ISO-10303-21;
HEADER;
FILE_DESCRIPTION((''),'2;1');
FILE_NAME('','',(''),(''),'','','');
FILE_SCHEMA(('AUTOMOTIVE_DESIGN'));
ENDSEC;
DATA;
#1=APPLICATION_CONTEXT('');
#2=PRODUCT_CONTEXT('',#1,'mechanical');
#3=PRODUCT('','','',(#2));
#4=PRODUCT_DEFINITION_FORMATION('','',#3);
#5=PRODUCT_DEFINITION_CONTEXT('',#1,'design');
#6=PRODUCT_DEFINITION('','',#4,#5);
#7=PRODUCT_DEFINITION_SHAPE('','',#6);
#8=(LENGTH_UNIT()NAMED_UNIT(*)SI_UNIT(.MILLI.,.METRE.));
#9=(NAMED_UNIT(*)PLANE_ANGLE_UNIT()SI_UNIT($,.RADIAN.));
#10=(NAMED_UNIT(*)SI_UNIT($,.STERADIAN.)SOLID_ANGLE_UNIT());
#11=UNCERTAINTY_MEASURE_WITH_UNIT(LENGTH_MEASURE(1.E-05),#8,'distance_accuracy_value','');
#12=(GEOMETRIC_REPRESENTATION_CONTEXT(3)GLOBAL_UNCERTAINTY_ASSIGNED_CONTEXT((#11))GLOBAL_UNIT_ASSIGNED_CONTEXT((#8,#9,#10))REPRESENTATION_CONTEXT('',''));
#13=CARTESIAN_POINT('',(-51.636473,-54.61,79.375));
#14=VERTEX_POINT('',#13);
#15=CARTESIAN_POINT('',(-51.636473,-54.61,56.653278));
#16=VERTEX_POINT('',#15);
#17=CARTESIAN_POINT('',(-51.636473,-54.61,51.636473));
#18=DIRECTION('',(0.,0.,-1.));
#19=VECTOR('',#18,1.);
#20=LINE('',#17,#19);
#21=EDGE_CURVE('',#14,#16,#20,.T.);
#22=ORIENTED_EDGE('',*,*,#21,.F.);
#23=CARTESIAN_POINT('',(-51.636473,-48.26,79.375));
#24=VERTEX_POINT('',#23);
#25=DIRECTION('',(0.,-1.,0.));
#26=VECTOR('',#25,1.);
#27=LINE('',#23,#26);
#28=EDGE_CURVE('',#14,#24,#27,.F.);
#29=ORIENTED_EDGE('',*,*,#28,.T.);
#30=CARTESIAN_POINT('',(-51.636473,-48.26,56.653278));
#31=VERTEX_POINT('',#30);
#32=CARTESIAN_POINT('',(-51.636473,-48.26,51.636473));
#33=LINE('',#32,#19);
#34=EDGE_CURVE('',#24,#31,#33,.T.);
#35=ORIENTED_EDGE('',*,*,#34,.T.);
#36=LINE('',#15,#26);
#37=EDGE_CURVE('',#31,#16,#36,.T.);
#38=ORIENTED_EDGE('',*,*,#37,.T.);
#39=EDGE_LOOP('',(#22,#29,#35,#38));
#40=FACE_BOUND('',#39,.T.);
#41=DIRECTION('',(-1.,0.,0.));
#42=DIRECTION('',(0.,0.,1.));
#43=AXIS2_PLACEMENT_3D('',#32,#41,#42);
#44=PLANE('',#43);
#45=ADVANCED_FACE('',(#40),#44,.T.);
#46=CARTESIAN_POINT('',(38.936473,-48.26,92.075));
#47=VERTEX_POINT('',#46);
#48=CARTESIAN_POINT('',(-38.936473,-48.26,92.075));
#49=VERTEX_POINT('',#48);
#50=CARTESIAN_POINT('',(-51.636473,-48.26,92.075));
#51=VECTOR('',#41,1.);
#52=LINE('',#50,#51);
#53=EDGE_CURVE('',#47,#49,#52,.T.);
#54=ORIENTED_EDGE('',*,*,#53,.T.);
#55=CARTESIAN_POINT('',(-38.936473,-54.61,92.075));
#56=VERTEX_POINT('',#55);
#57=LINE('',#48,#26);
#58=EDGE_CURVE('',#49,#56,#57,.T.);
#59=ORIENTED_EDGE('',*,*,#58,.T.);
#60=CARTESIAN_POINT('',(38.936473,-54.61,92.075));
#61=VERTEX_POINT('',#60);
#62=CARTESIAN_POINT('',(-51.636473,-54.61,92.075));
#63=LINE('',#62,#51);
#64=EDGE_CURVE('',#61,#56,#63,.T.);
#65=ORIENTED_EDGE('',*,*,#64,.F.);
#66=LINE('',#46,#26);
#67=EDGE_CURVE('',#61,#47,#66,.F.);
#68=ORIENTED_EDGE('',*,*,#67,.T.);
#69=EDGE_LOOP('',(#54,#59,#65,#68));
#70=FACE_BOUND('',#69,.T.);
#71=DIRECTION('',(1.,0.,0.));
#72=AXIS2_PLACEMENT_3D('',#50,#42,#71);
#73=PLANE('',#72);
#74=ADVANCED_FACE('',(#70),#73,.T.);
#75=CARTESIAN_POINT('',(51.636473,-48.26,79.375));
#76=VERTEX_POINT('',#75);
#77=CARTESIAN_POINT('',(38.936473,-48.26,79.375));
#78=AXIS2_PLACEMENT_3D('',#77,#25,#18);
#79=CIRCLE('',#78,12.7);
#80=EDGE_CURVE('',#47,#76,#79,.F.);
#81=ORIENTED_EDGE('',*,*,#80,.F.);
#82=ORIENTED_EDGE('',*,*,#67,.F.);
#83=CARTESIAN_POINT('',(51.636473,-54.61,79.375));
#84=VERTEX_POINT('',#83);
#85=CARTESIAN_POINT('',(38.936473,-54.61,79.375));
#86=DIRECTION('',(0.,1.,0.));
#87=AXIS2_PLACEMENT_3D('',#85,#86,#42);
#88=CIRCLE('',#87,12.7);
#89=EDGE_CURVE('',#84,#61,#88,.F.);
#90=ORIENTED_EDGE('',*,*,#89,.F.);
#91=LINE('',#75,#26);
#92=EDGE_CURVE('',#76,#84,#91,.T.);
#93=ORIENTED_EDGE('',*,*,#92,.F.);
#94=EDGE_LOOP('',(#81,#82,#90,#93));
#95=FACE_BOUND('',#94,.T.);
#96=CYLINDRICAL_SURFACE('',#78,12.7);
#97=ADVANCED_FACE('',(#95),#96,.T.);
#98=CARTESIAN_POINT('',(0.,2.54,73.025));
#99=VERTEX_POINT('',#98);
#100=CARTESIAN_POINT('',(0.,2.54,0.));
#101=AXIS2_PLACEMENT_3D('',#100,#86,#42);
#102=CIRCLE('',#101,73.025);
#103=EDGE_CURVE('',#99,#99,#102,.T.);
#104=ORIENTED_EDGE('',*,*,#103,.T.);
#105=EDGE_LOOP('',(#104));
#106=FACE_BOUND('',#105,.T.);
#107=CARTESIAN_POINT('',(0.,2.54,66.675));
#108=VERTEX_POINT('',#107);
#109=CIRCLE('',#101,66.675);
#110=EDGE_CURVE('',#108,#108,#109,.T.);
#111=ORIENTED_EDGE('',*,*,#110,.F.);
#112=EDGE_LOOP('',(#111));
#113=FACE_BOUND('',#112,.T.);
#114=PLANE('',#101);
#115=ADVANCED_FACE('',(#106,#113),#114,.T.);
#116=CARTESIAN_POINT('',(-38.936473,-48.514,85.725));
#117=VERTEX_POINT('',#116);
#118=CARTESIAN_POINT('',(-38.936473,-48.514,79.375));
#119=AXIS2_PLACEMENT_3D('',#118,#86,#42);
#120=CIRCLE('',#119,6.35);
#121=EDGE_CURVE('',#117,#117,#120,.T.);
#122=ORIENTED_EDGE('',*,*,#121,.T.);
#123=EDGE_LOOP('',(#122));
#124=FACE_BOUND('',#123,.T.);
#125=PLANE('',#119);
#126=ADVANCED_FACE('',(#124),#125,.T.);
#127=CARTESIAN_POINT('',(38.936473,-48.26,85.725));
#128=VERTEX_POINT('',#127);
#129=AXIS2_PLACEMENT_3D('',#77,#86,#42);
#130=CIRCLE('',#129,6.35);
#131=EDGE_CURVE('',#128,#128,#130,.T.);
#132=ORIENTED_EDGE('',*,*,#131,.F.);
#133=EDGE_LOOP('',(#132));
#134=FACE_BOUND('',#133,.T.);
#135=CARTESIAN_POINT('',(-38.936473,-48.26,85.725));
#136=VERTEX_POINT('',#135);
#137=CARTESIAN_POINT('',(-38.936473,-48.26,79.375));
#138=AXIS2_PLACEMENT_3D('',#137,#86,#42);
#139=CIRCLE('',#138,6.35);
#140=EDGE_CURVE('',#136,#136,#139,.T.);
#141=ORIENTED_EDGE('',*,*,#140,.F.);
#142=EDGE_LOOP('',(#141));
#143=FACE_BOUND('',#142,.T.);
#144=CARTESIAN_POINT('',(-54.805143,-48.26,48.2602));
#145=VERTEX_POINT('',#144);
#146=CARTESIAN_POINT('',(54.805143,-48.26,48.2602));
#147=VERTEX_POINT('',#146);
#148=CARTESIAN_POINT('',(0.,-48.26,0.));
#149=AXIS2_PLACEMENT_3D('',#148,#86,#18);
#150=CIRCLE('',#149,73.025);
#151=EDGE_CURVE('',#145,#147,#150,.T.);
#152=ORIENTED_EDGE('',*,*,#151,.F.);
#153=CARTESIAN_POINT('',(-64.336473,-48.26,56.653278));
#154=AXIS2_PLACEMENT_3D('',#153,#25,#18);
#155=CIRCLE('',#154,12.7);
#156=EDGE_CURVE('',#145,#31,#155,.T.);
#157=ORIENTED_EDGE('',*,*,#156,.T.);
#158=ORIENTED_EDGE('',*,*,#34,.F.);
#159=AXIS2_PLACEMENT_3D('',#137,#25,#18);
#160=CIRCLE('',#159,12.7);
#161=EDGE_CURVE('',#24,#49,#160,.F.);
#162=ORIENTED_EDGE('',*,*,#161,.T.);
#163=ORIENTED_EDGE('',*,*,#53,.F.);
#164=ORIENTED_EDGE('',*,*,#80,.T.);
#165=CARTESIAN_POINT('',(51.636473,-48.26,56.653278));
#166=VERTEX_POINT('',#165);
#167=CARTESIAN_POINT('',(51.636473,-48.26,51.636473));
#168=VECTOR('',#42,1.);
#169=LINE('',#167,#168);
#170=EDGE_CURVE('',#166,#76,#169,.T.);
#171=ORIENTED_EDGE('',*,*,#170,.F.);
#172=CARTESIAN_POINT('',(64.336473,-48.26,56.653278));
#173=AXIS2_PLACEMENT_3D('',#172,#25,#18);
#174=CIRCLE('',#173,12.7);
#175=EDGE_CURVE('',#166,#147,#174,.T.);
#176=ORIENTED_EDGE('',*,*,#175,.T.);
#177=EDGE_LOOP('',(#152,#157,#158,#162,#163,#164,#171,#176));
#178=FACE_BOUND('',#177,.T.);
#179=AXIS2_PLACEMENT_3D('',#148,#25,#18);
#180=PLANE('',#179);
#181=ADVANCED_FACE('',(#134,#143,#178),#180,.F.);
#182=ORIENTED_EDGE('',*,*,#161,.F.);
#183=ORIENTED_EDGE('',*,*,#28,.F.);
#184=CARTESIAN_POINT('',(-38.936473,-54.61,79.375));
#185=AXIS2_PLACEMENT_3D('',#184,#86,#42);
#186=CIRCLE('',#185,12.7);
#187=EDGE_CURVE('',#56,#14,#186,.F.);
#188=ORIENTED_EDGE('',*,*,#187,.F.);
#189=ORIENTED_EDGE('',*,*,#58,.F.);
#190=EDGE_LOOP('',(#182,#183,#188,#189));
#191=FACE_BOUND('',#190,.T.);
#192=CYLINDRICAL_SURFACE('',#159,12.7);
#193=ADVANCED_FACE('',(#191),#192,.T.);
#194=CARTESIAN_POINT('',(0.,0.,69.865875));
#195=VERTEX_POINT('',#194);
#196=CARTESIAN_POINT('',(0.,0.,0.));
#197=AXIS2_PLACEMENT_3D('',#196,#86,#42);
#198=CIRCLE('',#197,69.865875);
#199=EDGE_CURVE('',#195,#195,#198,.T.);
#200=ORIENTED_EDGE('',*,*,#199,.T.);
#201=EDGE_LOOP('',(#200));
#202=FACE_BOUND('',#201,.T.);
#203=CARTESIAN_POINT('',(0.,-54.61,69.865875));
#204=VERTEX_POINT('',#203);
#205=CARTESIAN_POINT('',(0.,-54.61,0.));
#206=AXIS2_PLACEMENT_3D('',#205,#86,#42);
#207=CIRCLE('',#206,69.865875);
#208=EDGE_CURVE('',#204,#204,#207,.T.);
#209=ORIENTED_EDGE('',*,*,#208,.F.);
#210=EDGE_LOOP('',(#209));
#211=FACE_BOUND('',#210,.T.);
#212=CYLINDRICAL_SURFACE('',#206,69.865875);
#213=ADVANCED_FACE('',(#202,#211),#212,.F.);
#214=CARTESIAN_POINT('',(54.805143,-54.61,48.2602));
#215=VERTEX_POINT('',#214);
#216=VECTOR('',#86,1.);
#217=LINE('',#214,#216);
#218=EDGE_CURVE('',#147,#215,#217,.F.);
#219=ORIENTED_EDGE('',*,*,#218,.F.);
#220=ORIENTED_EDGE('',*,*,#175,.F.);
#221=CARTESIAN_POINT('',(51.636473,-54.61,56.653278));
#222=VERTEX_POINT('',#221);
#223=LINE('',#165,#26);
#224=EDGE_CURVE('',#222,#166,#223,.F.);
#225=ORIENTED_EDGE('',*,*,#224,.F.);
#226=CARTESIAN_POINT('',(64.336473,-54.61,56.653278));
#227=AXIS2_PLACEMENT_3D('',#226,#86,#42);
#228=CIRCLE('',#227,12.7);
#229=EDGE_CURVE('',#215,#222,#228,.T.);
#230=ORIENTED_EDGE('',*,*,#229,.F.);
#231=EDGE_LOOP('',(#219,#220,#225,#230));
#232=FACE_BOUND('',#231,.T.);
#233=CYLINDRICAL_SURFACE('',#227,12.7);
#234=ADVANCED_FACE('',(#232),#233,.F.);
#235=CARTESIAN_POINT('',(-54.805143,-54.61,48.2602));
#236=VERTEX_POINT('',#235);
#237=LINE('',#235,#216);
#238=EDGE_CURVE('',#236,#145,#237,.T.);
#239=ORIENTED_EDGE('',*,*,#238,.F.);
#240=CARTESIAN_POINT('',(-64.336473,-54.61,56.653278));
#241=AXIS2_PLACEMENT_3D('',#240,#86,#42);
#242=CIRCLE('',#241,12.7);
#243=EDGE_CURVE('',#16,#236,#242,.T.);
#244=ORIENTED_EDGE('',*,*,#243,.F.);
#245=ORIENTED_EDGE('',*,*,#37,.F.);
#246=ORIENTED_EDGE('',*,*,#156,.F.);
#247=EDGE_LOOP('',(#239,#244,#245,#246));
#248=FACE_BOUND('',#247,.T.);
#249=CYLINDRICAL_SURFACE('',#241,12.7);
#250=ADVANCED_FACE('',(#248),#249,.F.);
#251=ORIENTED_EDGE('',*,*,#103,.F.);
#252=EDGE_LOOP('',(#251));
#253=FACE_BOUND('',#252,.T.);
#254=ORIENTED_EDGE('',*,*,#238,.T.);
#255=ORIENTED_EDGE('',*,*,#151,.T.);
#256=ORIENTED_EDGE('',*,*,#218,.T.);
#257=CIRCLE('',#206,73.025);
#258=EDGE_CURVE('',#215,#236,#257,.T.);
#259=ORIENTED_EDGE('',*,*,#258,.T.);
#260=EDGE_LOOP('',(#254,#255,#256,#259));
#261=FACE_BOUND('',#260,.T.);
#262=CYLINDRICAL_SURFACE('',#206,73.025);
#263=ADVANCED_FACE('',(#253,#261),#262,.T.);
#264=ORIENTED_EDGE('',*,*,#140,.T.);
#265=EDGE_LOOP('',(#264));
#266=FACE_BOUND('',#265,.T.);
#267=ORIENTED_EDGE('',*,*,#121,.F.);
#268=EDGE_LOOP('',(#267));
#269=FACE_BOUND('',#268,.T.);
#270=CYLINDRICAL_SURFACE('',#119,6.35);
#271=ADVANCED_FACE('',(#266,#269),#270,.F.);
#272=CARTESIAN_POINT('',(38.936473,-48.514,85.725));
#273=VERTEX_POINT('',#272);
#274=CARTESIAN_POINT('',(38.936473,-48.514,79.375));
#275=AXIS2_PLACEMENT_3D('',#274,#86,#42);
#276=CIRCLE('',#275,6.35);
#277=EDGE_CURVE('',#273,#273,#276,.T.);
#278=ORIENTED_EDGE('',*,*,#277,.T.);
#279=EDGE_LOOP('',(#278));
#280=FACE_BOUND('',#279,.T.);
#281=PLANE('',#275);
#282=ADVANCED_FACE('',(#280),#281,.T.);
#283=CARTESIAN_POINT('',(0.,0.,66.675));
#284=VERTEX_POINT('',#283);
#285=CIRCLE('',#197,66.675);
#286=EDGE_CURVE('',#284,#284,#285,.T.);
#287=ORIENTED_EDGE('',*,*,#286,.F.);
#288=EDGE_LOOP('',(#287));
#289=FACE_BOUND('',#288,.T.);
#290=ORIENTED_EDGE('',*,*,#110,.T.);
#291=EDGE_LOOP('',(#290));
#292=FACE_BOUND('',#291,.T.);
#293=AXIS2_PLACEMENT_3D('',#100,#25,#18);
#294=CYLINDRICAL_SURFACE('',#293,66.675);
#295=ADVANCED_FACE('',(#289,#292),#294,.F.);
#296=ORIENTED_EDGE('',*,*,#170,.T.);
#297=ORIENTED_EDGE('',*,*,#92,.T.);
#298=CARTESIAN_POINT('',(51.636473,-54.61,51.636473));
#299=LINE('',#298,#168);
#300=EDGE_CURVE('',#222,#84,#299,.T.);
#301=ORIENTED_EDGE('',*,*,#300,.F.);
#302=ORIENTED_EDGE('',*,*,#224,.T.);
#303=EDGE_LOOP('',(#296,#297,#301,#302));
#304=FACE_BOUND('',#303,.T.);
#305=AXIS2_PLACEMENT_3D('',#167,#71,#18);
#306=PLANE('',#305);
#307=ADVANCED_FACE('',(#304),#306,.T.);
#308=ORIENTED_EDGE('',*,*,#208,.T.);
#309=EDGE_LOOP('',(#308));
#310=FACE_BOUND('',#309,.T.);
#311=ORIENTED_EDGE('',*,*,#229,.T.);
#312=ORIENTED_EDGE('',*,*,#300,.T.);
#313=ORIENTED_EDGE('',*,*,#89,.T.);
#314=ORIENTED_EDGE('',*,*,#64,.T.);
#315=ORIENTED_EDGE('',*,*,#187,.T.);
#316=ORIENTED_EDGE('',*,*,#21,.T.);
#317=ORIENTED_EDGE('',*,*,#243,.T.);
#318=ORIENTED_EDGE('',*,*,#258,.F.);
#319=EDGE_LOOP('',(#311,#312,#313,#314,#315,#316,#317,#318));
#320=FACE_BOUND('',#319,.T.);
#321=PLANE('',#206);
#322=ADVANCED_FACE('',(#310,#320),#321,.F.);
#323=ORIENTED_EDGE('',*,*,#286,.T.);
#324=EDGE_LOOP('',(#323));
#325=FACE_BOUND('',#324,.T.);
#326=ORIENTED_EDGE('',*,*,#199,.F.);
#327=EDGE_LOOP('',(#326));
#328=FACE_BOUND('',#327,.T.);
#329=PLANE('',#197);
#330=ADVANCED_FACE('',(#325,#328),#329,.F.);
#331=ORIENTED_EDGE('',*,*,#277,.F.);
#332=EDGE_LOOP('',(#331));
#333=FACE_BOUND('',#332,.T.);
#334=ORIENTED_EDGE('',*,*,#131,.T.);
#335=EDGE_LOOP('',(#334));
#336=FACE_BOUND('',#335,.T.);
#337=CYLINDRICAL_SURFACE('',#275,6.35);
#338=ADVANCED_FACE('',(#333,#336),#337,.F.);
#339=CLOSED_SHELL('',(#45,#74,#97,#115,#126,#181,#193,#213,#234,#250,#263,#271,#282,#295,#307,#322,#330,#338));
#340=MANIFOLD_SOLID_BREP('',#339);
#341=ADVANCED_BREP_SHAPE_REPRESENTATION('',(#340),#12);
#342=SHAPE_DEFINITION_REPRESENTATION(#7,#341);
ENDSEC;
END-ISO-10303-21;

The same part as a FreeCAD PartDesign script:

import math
import FreeCAD as App
import Part
import Sketcher
from FreeCAD import Vector
Q = App.Units.Quantity


def edges_at(feature, points):
    """Names of the edges that pass closest to the given points."""
    edges = feature.Shape.Edges
    near = lambda p: min(range(len(edges)), key=lambda i: edges[i].distToShape(Part.Vertex(*p))[0])
    return sorted({f"Edge{near(p) + 1}" for p in points})

doc = App.newDocument("Part")
body = doc.addObject("PartDesign::Body", "Body")

sketch1 = body.newObject("Sketcher::SketchObject", "Sketch")
sketch1.AttachmentSupport = (doc.getObject("XZ_Plane"), [""])
sketch1.MapMode = "FlatFace"
sketch1.addGeometry([
    Part.Circle(Vector(0, 0, 0), Vector(0, 0, 1), 70),
    Part.Circle(Vector(0, 0, 0), Vector(0, 0, 1), 67),
], False)
sketch1.addConstraint([
    Sketcher.Constraint("Coincident", 0, 3, -1, 1),
    Sketcher.Constraint("Coincident", 1, 3, -1, 1),
    Sketcher.Constraint("Diameter", 1, Q("5.25 in")),
    Sketcher.Constraint("Diameter", 0, Q("139.73175 mm")),
])
pad1 = body.newObject("PartDesign::Pad", "Pad")
pad1.Profile = sketch1
pad1.Length = Q("0.1 in")
pad1.Reversed = True

sketch2 = body.newObject("Sketcher::SketchObject", "Sketch001")
sketch2.AttachmentSupport = (doc.getObject("XZ_Plane"), [""])
sketch2.MapMode = "FlatFace"
sketch2.AttachmentOffset = App.Placement(Vector(0, 0, 2.15 * 25.4), App.Rotation())
sketch2.addGeometry([
    Part.Circle(Vector(0, 0, 0), Vector(0, 0, 1), 73),
    Part.Circle(Vector(0, 0, 0), Vector(0, 0, 1), 70),
], False)
sketch2.addConstraint([
    Sketcher.Constraint("Coincident", 0, 3, -1, 1),
    Sketcher.Constraint("Coincident", 1, 3, -1, 1),
    Sketcher.Constraint("Diameter", 0, Q("5.75 in")),
    Sketcher.Constraint("Diameter", 1, Q("139.73175 mm")),
])
pad2 = body.newObject("PartDesign::Pad", "Pad001")
pad2.Profile = sketch2
pad2.Length = Q("2.25 in")
pad2.Reversed = True

sketch3 = body.newObject("Sketcher::SketchObject", "Sketch002")
sketch3.AttachmentSupport = (doc.getObject("XZ_Plane"), [""])
sketch3.MapMode = "FlatFace"
sketch3.AttachmentOffset = App.Placement(Vector(0, 0, 2.15 * 25.4), App.Rotation())
sketch3.addGeometry([
    Part.LineSegment(Vector(-52, 92, 0), Vector(-52, 52, 0)),
    Part.ArcOfCircle(Part.Circle(Vector(0, 0, 0), Vector(0, 0, 1), 73), math.radians(45), math.radians(135)),
    Part.LineSegment(Vector(52, 52, 0), Vector(52, 92, 0)),
    Part.LineSegment(Vector(52, 92, 0), Vector(-52, 92, 0)),
], False)
sketch3.addConstraint([
    Sketcher.Constraint("Coincident", 0, 2, 1, 2),
    Sketcher.Constraint("Coincident", 1, 1, 2, 1),
    Sketcher.Constraint("Coincident", 2, 2, 3, 1),
    Sketcher.Constraint("Coincident", 3, 2, 0, 1),
    Sketcher.Constraint("Vertical", 0),
    Sketcher.Constraint("Vertical", 2),
    Sketcher.Constraint("Horizontal", 3),
    Sketcher.Constraint("Coincident", 1, 3, -1, 1),
    Sketcher.Constraint("Horizontal", 0, 2, 1, 1),
    Sketcher.Constraint("Radius", 1, Q("2.875 in")),
    Sketcher.Constraint("DistanceY", -1, 1, 2, 2, Q("3.625 in")),
    Sketcher.Constraint("DistanceX", 3, 2, 3, 1, Q("103.272945 mm")),
])
pad3 = body.newObject("PartDesign::Pad", "Pad002")
pad3.Profile = sketch3
pad3.Length = Q("0.25 in")
pad3.Reversed = True
doc.recompute()

fillet = body.newObject("PartDesign::Fillet", "Fillet")
fillet.Base = (pad3, edges_at(pad3, [
    (51.636, -51.435, 51.636),
    (-51.636, -51.435, 51.636),
    (-51.636, -51.435, 92.075),
    (51.636, -51.435, 92.075),
]))
fillet.Radius = Q("0.5 in")

sketch4 = body.newObject("Sketcher::SketchObject", "Sketch003")
sketch4.AttachmentSupport = (doc.getObject("XZ_Plane"), [""])
sketch4.MapMode = "FlatFace"
sketch4.AttachmentOffset = App.Placement(Vector(0, 0, 1.9 * 25.4), App.Rotation())
sketch4.addGeometry([
    Part.Circle(Vector(-39, 79, 0), Vector(0, 0, 1), 6),
    Part.Circle(Vector(39, 79, 0), Vector(0, 0, 1), 6),
], False)
sketch4.addConstraint([
    Sketcher.Constraint("Equal", 0, 1),
    Sketcher.Constraint("Symmetric", 0, 3, 1, 3, -2),
    Sketcher.Constraint("Diameter", 0, Q("0.5 in")),
    Sketcher.Constraint("DistanceY", -1, 1, 0, 3, Q("3.125 in")),
    Sketcher.Constraint("DistanceX", 0, 3, -1, 1, Q("38.936473 mm")),
])
pocket1 = body.newObject("PartDesign::Pocket", "Pocket")
pocket1.Profile = sketch4
pocket1.Length = Q("0.01 in")
pocket1.Reversed = True

doc.recompute()
